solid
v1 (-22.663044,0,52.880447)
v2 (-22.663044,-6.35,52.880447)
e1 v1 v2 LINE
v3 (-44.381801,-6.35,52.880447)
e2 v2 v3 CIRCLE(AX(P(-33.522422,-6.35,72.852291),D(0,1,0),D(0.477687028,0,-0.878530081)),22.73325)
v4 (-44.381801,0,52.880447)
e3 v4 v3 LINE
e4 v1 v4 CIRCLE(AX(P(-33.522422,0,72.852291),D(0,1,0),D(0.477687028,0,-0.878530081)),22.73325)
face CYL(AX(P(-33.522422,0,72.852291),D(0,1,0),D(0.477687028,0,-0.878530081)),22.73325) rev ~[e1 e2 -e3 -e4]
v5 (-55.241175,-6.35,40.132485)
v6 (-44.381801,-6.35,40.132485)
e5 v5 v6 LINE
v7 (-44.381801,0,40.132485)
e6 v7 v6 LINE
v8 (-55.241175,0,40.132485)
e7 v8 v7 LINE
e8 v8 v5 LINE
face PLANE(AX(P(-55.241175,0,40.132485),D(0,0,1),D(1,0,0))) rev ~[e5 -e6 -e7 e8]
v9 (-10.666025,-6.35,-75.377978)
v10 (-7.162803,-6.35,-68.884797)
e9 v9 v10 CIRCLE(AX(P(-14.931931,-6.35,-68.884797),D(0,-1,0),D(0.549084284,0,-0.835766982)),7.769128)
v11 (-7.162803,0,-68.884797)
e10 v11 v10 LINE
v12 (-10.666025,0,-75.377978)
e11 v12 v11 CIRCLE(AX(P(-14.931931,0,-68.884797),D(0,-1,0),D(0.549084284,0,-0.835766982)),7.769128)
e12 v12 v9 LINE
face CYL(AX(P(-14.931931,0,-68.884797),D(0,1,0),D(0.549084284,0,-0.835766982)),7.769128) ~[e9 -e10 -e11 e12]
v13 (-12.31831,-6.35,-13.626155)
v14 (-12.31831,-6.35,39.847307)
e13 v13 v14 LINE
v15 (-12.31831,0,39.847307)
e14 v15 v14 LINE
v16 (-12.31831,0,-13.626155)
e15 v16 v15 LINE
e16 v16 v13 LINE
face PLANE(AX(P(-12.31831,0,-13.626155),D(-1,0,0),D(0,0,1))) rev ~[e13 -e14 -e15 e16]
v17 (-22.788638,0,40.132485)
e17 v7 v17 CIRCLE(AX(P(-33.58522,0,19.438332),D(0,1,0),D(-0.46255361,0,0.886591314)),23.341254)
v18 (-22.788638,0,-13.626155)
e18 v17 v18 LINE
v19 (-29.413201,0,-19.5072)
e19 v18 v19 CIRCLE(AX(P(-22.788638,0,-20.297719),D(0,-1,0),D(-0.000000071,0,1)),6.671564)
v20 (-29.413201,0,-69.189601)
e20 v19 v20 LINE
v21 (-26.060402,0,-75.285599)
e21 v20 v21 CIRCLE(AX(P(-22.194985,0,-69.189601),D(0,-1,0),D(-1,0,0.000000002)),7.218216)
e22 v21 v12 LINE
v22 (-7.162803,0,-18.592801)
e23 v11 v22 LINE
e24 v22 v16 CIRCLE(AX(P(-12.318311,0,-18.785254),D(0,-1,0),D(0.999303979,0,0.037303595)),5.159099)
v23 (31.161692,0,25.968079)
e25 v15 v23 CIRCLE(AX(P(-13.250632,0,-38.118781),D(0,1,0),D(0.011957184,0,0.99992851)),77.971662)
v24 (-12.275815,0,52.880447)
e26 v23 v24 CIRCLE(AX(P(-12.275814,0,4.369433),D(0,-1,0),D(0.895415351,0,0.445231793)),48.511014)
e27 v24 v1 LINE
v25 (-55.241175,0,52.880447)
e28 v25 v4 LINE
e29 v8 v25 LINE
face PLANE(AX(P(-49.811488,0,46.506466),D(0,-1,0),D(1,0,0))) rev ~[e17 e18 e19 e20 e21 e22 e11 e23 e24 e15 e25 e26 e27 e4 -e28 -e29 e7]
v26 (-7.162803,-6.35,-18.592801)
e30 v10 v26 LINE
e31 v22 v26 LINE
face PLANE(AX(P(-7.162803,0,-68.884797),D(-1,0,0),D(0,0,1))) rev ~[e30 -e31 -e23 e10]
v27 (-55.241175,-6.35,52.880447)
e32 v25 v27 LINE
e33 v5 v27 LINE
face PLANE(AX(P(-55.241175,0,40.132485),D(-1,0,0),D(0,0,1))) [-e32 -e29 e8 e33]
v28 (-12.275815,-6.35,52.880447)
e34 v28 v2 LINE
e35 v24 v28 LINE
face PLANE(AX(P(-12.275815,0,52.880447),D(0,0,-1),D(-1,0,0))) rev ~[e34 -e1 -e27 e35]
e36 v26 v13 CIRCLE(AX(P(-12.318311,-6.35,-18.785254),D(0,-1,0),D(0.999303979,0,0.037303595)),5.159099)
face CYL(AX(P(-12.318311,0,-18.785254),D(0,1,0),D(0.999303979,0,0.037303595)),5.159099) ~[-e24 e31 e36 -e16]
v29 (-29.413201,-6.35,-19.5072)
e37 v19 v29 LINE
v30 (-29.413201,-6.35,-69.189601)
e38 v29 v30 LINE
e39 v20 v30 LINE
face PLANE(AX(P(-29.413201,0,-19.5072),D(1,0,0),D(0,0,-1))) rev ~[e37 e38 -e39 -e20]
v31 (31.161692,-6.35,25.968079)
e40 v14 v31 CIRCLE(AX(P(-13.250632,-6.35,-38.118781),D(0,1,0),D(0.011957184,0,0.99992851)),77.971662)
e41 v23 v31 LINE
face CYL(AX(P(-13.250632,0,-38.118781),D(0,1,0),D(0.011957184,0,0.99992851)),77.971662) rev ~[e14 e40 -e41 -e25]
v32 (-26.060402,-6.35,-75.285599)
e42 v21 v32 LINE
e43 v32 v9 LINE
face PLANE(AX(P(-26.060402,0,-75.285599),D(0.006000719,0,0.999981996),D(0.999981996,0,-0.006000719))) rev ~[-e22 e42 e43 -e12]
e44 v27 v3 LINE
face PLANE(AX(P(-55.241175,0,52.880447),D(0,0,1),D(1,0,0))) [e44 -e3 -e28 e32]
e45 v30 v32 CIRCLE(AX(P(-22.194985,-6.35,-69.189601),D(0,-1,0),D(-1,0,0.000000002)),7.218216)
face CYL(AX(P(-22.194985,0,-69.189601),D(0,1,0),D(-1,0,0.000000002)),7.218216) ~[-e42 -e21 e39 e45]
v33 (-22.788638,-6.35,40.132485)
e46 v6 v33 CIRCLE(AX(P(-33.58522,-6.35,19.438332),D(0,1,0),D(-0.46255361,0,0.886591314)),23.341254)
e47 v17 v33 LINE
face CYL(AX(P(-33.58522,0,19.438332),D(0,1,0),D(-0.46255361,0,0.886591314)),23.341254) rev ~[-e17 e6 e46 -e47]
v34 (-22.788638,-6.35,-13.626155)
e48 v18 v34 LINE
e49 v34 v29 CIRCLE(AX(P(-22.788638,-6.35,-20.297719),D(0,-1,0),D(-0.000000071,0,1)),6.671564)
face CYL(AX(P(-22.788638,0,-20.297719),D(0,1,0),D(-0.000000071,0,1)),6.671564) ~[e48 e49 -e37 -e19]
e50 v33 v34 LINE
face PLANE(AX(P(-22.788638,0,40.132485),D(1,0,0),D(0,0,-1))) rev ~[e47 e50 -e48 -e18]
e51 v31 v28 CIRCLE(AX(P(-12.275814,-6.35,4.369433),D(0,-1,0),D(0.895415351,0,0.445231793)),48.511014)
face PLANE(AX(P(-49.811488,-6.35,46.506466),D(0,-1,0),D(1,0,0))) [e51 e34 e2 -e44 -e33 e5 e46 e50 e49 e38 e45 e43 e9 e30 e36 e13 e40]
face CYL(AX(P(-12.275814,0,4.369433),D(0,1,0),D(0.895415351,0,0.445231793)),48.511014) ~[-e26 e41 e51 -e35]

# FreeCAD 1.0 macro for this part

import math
import FreeCAD as App
import Part
import Sketcher

V = App.Vector
Q = App.Units.Quantity

doc = App.newDocument("Part")
body = doc.addObject("PartDesign::Body", "Body")

# Sketch on XZ plane
sketch1 = doc.addObject("Sketcher::SketchObject", "Sketch")
body.addObject(sketch1)
sketch1.AttachmentSupport = (doc.XZ_Plane, [""])
sketch1.MapMode = "FlatFace"
sketch1.addGeometry(Part.LineSegment(V(-55.241175, 52.880447, 0), V(-55.241175, 40.132485, 0)), False)
sketch1.addGeometry(Part.LineSegment(V(-55.241175, 40.132485, 0), V(-44.381801, 40.132485, 0)), False)
sketch1.addGeometry(Part.ArcOfCircle(Part.Circle(V(-33.58522, 19.438332, 0), V(0, 0, 1), 23.341254), math.radians(62.44799), math.radians(117.55201)), False)
sketch1.addGeometry(Part.LineSegment(V(-22.788638, 40.132485, 0), V(-22.788638, -13.626155, 0)), False)
sketch1.addGeometry(Part.ArcOfCircle(Part.Circle(V(-22.788638, -20.297719, 0), V(0, 0, 1), 6.671564), math.radians(90.000004), math.radians(173.194992)), False)
sketch1.addGeometry(Part.LineSegment(V(-29.413201, -19.5072, 0), V(-29.413201, -69.189601, 0)), False)
sketch1.addGeometry(Part.ArcOfCircle(Part.Circle(V(-22.194985, -69.189601, 0), V(0, 0, 1), 7.218216), math.radians(180), math.radians(237.621589)), False)
sketch1.addGeometry(Part.LineSegment(V(-26.060402, -75.285599, 0), V(-10.666025, -75.377978, 0)), False)
sketch1.addGeometry(Part.ArcOfCircle(Part.Circle(V(-14.931931, -68.884797, 0), V(0, 0, 1), 7.769128), math.radians(-56.695786), math.radians(0.000001)), False)
sketch1.addGeometry(Part.LineSegment(V(-7.162803, -68.884797, 0), V(-7.162803, -18.592801, 0)), False)
sketch1.addGeometry(Part.ArcOfCircle(Part.Circle(V(-12.318311, -18.785254, 0), V(0, 0, 1), 5.159099), math.radians(2.137835), math.radians(89.999988)), False)
sketch1.addGeometry(Part.LineSegment(V(-12.31831, -13.626155, 0), V(-12.31831, 39.847307, 0)), False)
sketch1.addGeometry(Part.ArcOfCircle(Part.Circle(V(-13.250632, -38.118781, 0), V(0, 0, 1), 77.971662), math.radians(55.277963), math.radians(89.314888)), False)
sketch1.addGeometry(Part.ArcOfCircle(Part.Circle(V(-12.275814, 4.369433, 0), V(0, 0, 1), 48.511014), math.radians(26.43817), math.radians(90.000001)), False)
sketch1.addGeometry(Part.LineSegment(V(-12.275815, 52.880447, 0), V(-22.663044, 52.880447, 0)), False)
sketch1.addGeometry(Part.ArcOfCircle(Part.Circle(V(-33.522422, 72.852291, 0), V(0, 0, 1), 22.73325), math.radians(-118.534447), math.radians(-61.465553)), False)
sketch1.addGeometry(Part.LineSegment(V(-44.381801, 52.880447, 0), V(-55.241175, 52.880447, 0)), False)
sketch1.addConstraint(Sketcher.Constraint("Coincident", 0, 2, 1, 1))
sketch1.addConstraint(Sketcher.Constraint("Coincident", 1, 2, 2, 2))
sketch1.addConstraint(Sketcher.Constraint("Coincident", 2, 1, 3, 1))
sketch1.addConstraint(Sketcher.Constraint("Coincident", 3, 2, 4, 1))
sketch1.addConstraint(Sketcher.Constraint("Coincident", 4, 2, 5, 1))
sketch1.addConstraint(Sketcher.Constraint("Coincident", 5, 2, 6, 1))
sketch1.addConstraint(Sketcher.Constraint("Coincident", 6, 2, 7, 1))
sketch1.addConstraint(Sketcher.Constraint("Coincident", 7, 2, 8, 1))
sketch1.addConstraint(Sketcher.Constraint("Coincident", 8, 2, 9, 1))
sketch1.addConstraint(Sketcher.Constraint("Coincident", 9, 2, 10, 1))
sketch1.addConstraint(Sketcher.Constraint("Coincident", 10, 2, 11, 1))
sketch1.addConstraint(Sketcher.Constraint("Coincident", 11, 2, 12, 2))
sketch1.addConstraint(Sketcher.Constraint("Coincident", 12, 1, 13, 1))
sketch1.addConstraint(Sketcher.Constraint("Coincident", 13, 2, 14, 1))
sketch1.addConstraint(Sketcher.Constraint("Coincident", 14, 2, 15, 2))
sketch1.addConstraint(Sketcher.Constraint("Coincident", 15, 1, 16, 1))
sketch1.addConstraint(Sketcher.Constraint("Coincident", 16, 2, 0, 1))
sketch1.addConstraint(Sketcher.Constraint("Vertical", 0))
sketch1.addConstraint(Sketcher.Constraint("Horizontal", 1))
sketch1.addConstraint(Sketcher.Constraint("Vertical", 3))
sketch1.addConstraint(Sketcher.Constraint("Vertical", 5))
sketch1.addConstraint(Sketcher.Constraint("Vertical", 9))
sketch1.addConstraint(Sketcher.Constraint("Vertical", 11))
sketch1.addConstraint(Sketcher.Constraint("Horizontal", 14))
sketch1.addConstraint(Sketcher.Constraint("Horizontal", 16))
sketch1.addConstraint(Sketcher.Constraint("DistanceY", 9, 1, 9, 2, Q("1.9799998 in")))
sketch1.addConstraint(Sketcher.Constraint("DistanceY", 5, 2, 5, 1, Q("1.956 in")))
sketch1.addConstraint(Sketcher.Constraint("Radius", 10, 5.159099))
sketch1.addConstraint(Sketcher.Constraint("DistanceY", 6, 2, 5, 2, Q("0.2399999 in")))
sketch1.addConstraint(Sketcher.Constraint("DistanceY", 6, 2, 6, 3, Q("0.2399999 in")))
sketch1.addConstraint(Sketcher.Constraint("DistanceY", 6, 3, -1, 1, Q("2.724 in")))
sketch1.addConstraint(Sketcher.Constraint("DistanceY", 8, 3, -1, 1, Q("2.7119999 in")))
sketch1.addConstraint(Sketcher.Constraint("DistanceX", 4, 2, -1, 1, Q("1.158 in")))
sketch1.addConstraint(Sketcher.Constraint("DistanceX", 6, 2, -1, 1, Q("1.0260001 in")))
sketch1.addConstraint(Sketcher.Constraint("DistanceX", 8, 2, -1, 1, Q("0.2820001 in")))
sketch1.addConstraint(Sketcher.Constraint("DistanceY", 8, 2, -1, 1, Q("2.7119999 in")))
sketch1.addConstraint(Sketcher.Constraint("Radius", 8, 7.769128))
sketch1.addConstraint(Sketcher.Constraint("Radius", 15, 22.73325))
sketch1.addConstraint(Sketcher.Constraint("DistanceX", 13, 2, -1, 1, Q("0.4832998 in")))
sketch1.addConstraint(Sketcher.Constraint("Radius", 2, 23.341254))
sketch1.addConstraint(Sketcher.Constraint("Radius", 4, 6.671564))
sketch1.addConstraint(Sketcher.Constraint("Radius", 12, 77.971662))
sketch1.addConstraint(Sketcher.Constraint("Radius", 13, 48.511014))
sketch1.addConstraint(Sketcher.Constraint("DistanceX", 14, 2, 14, 1, 10.387229))
sketch1.addConstraint(Sketcher.Constraint("DistanceY", 0, 2, 0, 1, 12.747962))
sketch1.addConstraint(Sketcher.Constraint("DistanceY", 3, 2, 3, 1, 53.75864))
sketch1.addConstraint(Sketcher.Constraint("DistanceY", 11, 1, 11, 2, 53.473462))
sketch1.addConstraint(Sketcher.Constraint("DistanceX", 1, 2, -1, 1, 44.381801))
sketch1.addConstraint(Sketcher.Constraint("DistanceX", 15, 1, -1, 1, 44.381801))
sketch1.addConstraint(Sketcher.Constraint("DistanceX", 8, 3, 12, 3, 1.6813))
sketch1.addConstraint(Sketcher.Constraint("DistanceY", 13, 3, 2, 3, 15.068898))
sketch1.addConstraint(Sketcher.Constraint("DistanceY", 10, 3, 3, 2, 5.159099))
sketch1.addConstraint(Sketcher.Constraint("DistanceX", 11, 2, 12, 1, 43.480002))
sketch1.addConstraint(Sketcher.Constraint("DistanceX", 1, 1, 1, 2, 10.859374))
sketch1.addConstraint(Sketcher.Constraint("DistanceX", 2, 3, -1, 1, 33.58522))
sketch1.addConstraint(Sketcher.Constraint("DistanceY", -1, 1, 2, 3, 19.438332))
sketch1.addConstraint(Sketcher.Constraint("DistanceY", 4, 3, -1, 1, 20.297719))
sketch1.addConstraint(Sketcher.Constraint("DistanceY", 12, 3, -1, 1, 38.118781))
sketch1.addConstraint(Sketcher.Constraint("DistanceY", 7, 2, -1, 1, 75.377978))
pad1 = doc.addObject("PartDesign::Pad", "Pad")
body.addObject(pad1)
pad1.Profile = sketch1
pad1.Length = Q("0.25 in")

doc.recompute()
